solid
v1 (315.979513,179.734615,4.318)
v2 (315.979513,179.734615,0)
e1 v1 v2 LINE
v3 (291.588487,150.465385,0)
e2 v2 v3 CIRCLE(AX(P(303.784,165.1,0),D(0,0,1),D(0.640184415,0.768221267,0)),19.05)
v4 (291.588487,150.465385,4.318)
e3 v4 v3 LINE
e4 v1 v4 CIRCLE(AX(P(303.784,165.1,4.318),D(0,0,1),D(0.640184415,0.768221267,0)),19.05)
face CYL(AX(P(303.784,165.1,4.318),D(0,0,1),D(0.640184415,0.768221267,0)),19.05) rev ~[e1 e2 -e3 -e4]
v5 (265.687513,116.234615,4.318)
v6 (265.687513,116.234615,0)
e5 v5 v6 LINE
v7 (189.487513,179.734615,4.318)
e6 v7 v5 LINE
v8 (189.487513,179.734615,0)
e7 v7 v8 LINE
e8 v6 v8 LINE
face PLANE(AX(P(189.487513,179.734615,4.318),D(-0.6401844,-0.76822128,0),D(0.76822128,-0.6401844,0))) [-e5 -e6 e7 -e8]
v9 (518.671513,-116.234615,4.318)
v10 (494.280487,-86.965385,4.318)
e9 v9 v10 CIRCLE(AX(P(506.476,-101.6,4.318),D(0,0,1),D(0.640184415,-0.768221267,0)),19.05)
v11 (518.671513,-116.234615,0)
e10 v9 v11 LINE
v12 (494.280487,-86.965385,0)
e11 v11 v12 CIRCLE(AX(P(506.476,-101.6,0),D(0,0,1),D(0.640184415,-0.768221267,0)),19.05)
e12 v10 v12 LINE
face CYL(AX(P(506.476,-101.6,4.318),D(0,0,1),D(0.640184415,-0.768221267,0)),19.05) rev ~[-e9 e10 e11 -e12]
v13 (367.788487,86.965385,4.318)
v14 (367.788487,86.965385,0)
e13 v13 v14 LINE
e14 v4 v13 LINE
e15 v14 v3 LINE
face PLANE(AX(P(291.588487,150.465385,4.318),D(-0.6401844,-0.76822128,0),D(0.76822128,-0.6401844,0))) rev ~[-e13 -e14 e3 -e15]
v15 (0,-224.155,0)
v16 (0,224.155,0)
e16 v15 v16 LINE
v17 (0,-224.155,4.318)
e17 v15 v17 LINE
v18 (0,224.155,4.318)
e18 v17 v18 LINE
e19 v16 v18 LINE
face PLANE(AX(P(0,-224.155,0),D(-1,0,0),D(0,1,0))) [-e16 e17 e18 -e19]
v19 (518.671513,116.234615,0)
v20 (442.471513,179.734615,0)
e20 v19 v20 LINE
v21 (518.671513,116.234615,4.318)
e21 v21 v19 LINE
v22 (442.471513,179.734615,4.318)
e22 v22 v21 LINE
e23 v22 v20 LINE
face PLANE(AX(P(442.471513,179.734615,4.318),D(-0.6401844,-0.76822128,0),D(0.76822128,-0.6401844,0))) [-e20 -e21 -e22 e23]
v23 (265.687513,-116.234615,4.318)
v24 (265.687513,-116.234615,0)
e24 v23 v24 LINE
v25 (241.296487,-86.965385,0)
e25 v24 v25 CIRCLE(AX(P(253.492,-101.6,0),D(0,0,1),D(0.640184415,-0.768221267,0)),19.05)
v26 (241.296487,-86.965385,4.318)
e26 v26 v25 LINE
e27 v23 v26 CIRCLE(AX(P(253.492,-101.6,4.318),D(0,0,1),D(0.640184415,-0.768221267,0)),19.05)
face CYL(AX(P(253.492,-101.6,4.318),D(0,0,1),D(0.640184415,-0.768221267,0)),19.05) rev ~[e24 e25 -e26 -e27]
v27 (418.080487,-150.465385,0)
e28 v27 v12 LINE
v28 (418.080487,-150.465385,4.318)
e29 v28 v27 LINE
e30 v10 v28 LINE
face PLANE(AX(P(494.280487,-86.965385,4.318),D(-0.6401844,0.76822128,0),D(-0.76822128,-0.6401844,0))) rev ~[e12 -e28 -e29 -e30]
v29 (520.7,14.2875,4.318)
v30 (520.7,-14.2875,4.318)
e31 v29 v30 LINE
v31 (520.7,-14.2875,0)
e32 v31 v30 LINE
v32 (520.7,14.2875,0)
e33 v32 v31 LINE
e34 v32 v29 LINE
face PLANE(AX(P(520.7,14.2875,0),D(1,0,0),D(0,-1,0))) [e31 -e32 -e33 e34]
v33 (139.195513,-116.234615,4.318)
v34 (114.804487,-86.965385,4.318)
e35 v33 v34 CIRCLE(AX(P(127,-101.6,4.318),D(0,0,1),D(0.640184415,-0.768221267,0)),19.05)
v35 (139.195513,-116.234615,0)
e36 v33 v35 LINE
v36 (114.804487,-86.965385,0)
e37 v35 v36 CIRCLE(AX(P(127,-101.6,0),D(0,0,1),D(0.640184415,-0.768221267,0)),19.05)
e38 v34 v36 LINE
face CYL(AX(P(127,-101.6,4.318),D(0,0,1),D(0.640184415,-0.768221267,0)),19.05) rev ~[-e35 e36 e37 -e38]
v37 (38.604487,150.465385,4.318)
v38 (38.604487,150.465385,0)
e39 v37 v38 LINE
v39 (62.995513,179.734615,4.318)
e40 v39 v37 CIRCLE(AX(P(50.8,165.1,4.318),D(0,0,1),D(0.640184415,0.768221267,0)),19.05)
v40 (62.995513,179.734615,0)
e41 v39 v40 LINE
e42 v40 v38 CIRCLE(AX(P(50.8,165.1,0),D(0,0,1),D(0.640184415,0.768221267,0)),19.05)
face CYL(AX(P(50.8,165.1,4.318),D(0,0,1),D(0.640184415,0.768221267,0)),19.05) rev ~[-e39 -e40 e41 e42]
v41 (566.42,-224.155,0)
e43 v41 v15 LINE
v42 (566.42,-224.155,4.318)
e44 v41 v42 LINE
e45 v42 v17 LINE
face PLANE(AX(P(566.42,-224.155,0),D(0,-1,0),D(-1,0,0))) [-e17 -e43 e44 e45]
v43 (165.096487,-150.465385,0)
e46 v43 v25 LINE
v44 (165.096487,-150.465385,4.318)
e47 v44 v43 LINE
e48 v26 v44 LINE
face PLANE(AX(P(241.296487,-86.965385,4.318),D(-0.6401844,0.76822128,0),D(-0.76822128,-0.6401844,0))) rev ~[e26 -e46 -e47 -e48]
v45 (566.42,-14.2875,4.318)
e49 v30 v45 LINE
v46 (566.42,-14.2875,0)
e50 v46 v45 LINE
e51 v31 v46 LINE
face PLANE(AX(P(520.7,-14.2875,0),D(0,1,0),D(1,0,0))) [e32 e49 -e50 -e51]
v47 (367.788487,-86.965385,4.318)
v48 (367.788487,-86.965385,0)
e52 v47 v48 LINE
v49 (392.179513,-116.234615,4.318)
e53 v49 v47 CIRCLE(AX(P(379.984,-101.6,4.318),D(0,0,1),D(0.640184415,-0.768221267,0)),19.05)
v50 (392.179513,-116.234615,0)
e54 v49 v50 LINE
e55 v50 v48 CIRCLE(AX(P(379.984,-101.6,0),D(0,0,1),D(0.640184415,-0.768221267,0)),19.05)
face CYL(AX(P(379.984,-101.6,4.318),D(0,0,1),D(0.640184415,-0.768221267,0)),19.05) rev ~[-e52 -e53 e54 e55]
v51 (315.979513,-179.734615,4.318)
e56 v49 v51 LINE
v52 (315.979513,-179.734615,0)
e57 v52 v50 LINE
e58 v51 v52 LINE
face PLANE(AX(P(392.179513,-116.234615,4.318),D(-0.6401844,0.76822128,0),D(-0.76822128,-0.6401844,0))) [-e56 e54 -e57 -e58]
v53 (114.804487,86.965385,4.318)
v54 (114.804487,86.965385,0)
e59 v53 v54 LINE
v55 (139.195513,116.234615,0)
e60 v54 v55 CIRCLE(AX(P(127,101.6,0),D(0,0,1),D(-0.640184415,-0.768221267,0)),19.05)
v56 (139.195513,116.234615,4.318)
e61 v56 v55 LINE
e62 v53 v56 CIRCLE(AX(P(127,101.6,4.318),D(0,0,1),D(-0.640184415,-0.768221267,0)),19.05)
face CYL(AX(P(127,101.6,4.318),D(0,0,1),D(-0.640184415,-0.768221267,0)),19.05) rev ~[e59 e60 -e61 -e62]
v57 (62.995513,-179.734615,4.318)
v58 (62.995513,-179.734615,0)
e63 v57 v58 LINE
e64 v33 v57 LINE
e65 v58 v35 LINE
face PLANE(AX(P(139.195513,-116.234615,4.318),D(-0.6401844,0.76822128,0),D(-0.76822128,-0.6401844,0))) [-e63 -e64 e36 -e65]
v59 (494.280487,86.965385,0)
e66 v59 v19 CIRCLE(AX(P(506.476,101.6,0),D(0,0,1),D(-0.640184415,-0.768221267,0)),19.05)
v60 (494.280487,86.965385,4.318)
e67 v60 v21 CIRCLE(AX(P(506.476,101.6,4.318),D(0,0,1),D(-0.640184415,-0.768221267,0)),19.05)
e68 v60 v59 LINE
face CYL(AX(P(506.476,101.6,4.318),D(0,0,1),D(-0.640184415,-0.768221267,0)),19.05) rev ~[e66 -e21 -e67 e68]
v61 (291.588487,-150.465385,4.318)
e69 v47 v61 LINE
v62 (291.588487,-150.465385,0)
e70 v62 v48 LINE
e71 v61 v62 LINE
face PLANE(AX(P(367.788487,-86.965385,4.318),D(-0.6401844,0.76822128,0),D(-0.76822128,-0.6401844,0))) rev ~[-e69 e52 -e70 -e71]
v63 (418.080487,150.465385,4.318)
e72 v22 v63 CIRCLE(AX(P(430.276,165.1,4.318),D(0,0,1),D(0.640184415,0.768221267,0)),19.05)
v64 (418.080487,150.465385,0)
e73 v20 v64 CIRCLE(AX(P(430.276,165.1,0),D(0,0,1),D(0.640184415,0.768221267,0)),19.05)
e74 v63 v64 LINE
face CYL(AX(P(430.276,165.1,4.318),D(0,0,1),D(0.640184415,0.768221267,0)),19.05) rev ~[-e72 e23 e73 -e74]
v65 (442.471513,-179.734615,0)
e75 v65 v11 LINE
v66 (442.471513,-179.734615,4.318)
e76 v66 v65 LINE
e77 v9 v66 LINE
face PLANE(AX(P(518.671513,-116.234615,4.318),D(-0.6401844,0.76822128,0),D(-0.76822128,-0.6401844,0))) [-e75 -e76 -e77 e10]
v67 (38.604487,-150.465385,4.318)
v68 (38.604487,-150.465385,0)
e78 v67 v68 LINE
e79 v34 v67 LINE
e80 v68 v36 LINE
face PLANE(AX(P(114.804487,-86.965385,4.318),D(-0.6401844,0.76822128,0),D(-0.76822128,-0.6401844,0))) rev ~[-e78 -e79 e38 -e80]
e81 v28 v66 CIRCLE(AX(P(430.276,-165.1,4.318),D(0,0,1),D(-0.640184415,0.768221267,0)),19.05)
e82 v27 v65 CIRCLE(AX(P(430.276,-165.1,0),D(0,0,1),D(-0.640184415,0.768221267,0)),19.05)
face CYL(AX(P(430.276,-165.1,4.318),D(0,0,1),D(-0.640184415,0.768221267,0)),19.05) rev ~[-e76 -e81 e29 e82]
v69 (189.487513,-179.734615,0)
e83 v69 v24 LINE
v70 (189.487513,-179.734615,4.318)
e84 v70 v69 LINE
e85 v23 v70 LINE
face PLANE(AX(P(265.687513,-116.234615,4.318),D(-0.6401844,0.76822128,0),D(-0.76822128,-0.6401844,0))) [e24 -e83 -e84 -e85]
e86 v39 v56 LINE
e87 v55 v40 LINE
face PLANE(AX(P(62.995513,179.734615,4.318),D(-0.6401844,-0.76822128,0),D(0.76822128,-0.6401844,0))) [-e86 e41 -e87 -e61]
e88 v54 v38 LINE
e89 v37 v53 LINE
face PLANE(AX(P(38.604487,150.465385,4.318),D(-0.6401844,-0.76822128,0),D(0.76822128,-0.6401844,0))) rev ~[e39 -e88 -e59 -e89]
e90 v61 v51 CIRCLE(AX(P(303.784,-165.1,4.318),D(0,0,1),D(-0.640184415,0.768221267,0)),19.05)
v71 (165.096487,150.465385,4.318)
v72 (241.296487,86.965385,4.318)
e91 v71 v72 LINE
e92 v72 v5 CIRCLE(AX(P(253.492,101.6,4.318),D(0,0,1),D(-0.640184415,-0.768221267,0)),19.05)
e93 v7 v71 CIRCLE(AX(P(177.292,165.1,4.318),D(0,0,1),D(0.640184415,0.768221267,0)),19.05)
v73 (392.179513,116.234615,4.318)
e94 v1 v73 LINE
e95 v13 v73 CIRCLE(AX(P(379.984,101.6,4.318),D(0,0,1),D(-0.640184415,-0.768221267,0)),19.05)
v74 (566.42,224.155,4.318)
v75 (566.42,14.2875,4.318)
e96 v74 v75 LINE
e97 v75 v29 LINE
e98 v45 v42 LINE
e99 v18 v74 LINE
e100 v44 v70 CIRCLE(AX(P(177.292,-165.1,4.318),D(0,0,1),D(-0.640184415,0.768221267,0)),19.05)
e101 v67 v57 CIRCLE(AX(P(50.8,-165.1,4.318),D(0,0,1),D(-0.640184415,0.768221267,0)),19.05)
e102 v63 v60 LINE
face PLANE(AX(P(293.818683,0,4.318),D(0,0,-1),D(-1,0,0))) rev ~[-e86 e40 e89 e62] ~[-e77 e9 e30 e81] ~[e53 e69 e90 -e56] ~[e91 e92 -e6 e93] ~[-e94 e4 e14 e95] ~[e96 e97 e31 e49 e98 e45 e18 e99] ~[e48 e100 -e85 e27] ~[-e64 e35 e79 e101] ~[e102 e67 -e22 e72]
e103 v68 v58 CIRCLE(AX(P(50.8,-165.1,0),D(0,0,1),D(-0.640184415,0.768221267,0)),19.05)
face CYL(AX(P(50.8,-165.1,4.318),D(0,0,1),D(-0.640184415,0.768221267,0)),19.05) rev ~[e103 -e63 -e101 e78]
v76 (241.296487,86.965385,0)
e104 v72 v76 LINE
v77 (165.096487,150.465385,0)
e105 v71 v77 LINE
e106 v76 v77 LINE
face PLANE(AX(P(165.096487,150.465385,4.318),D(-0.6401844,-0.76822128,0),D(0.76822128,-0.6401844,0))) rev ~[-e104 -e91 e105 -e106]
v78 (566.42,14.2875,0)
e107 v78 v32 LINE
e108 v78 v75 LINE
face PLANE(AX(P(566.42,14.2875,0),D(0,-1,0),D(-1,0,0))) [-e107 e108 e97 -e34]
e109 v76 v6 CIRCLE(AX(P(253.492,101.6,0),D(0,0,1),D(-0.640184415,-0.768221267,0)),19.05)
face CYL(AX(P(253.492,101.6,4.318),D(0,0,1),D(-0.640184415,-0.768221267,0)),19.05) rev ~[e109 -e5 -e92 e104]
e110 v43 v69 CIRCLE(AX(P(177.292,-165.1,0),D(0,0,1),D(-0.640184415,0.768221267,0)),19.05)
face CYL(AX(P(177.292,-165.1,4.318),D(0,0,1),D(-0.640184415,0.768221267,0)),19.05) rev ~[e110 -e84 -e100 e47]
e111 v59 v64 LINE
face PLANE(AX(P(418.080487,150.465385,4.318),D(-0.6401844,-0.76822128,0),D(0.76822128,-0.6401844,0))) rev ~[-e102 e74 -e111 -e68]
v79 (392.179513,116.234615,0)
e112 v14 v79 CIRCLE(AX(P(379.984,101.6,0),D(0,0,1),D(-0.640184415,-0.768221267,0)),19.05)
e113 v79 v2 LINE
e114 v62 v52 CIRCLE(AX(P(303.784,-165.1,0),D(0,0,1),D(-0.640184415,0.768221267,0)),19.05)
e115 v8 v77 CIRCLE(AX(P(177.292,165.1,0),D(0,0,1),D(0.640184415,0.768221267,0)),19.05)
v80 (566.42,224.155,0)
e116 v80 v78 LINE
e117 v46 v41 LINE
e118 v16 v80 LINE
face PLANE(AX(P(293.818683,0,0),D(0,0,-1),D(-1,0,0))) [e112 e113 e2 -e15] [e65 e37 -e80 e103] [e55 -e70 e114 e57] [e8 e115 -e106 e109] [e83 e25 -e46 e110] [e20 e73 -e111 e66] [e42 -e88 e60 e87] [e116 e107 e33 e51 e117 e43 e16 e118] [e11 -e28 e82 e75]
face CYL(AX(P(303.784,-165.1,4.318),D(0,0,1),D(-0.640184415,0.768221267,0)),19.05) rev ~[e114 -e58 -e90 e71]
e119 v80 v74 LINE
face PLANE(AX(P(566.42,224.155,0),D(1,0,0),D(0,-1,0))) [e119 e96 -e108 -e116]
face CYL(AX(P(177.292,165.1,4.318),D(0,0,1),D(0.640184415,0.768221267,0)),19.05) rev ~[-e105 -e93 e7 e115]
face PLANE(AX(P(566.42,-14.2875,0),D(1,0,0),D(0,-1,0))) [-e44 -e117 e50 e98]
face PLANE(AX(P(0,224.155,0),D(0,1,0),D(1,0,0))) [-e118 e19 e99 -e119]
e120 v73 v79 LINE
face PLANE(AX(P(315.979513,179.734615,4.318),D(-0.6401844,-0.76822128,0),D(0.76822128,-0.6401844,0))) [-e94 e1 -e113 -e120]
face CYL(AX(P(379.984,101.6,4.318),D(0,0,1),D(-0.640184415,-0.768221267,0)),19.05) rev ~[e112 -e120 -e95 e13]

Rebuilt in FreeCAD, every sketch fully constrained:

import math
import FreeCAD as App
import Part
import Sketcher
Q = App.Units.Quantity


def add_polygon(sketch, points):
    """Adds a closed chain of lines whose ends are joined by coincident constraints."""
    first, n = sketch.GeometryCount, len(points)
    for a, b in zip(points, points[1:] + points[:1]):
        sketch.addGeometry(Part.LineSegment(App.Vector(*a, 0), App.Vector(*b, 0)), False)
    for i in range(n):
        sketch.addConstraint(Sketcher.Constraint("Coincident", first + i, 2, first + (i + 1) % n, 1))

doc = App.newDocument("Part")
body = doc.addObject("PartDesign::Body", "Body")

sketch1 = body.newObject("Sketcher::SketchObject", "Sketch")
sketch1.AttachmentSupport = (doc.getObject("XY_Plane"), [""])
sketch1.MapMode = "FlatFace"
add_polygon(sketch1, [(566.42, 224.155), (0, 224.155), (0, -224.155), (566.42, -224.155), (566.42, -14.2875), (520.7, -14.2875), (520.7, 14.2875), (566.42, 14.2875)])
sketch1.addConstraint([
    Sketcher.Constraint("Horizontal", 0),
    Sketcher.Constraint("Vertical", 1),
    Sketcher.Constraint("Horizontal", 2),
    Sketcher.Constraint("Vertical", 3),
    Sketcher.Constraint("Horizontal", 4),
    Sketcher.Constraint("Vertical", 5),
    Sketcher.Constraint("Horizontal", 6),
    Sketcher.Constraint("Vertical", 7),
    Sketcher.Constraint("Symmetric", 0, 2, 1, 2, -1, 1),
    Sketcher.Constraint("Symmetric", 3, 2, 6, 2, -1),
    Sketcher.Constraint("DistanceX", 0, 2, 0, 1, Q("22.3 in")),
    Sketcher.Constraint("DistanceX", 4, 2, 4, 1, Q("1.8 in")),
    Sketcher.Constraint("DistanceY", 1, 2, 1, 1, Q("17.65 in")),
    Sketcher.Constraint("DistanceY", 5, 1, 5, 2, Q("1.125 in")),
])
pad1 = body.newObject("PartDesign::Pad", "Pad")
pad1.Profile = sketch1
pad1.Length = Q("0.17 in")

sketch2 = body.newObject("Sketcher::SketchObject", "Sketch001")
sketch2.AttachmentSupport = (doc.getObject("XY_Plane"), [""])
sketch2.MapMode = "FlatFace"
sketch2.AttachmentOffset = App.Placement(App.Vector(0, 0, 0.17 * 25.4), App.Rotation())
sketch2.addGeometry([
    Part.ArcOfCircle(Part.Circle(App.Vector(50.8, 165.1, 0), App.Vector(0, 0, 1), 19.05), math.radians(50.194428), math.radians(230.194428)),
    Part.LineSegment(App.Vector(38.604487, 150.465385, 0), App.Vector(114.804487, 86.965385, 0)),
    Part.ArcOfCircle(Part.Circle(App.Vector(127, 101.6, 0), App.Vector(0, 0, 1), 19.05), math.radians(-129.805572), math.radians(50.194428)),
    Part.LineSegment(App.Vector(139.195513, 116.234615, 0), App.Vector(62.995513, 179.734615, 0)),
    Part.ArcOfCircle(Part.Circle(App.Vector(127, -101.6, 0), App.Vector(0, 0, 1), 19.05), math.radians(-50.194428), math.radians(129.805572)),
    Part.LineSegment(App.Vector(114.804487, -86.965385, 0), App.Vector(38.604487, -150.465385, 0)),
    Part.ArcOfCircle(Part.Circle(App.Vector(50.8, -165.1, 0), App.Vector(0, 0, 1), 19.05), math.radians(129.805572), math.radians(309.805572)),
    Part.LineSegment(App.Vector(62.995513, -179.734615, 0), App.Vector(139.195513, -116.234615, 0)),
], False)
sketch2.addConstraint([
    Sketcher.Constraint("Tangent", 0, 2, 1, 1),
    Sketcher.Constraint("Tangent", 1, 2, 2, 1),
    Sketcher.Constraint("Tangent", 2, 2, 3, 1),
    Sketcher.Constraint("Tangent", 3, 2, 0, 1),
    Sketcher.Constraint("Tangent", 4, 2, 5, 1),
    Sketcher.Constraint("Tangent", 5, 2, 6, 1),
    Sketcher.Constraint("Tangent", 6, 2, 7, 1),
    Sketcher.Constraint("Tangent", 7, 2, 4, 1),
    Sketcher.Constraint("Equal", 0, 2),
    Sketcher.Constraint("Equal", 2, 4),
    Sketcher.Constraint("Equal", 4, 6),
    Sketcher.Constraint("Symmetric", 2, 3, 4, 3, -1),
    Sketcher.Constraint("Symmetric", 0, 3, 6, 3, -1),
    Sketcher.Constraint("Radius", 0, Q("0.75 in")),
    Sketcher.Constraint("DistanceX", -1, 1, 0, 3, Q("2 in")),
    Sketcher.Constraint("DistanceX", -1, 1, 2, 3, Q("5 in")),
    Sketcher.Constraint("DistanceY", -1, 1, 2, 3, Q("4 in")),
    Sketcher.Constraint("DistanceY", 6, 3, 0, 3, Q("13 in")),
])
pocket1 = body.newObject("PartDesign::Pocket", "Pocket")
pocket1.Profile = sketch2
pocket1.Length = Q("0.2 in")
doc.recompute()

linearpattern = body.newObject("PartDesign::LinearPattern", "LinearPattern")
linearpattern.Originals = [pocket1]
linearpattern.Direction = (doc.getObject("X_Axis"), [""])
linearpattern.Mode = "offset"
linearpattern.Offset = Q("4.98 in")
linearpattern.Occurrences = 4
body.Tip = linearpattern

doc.recompute()
